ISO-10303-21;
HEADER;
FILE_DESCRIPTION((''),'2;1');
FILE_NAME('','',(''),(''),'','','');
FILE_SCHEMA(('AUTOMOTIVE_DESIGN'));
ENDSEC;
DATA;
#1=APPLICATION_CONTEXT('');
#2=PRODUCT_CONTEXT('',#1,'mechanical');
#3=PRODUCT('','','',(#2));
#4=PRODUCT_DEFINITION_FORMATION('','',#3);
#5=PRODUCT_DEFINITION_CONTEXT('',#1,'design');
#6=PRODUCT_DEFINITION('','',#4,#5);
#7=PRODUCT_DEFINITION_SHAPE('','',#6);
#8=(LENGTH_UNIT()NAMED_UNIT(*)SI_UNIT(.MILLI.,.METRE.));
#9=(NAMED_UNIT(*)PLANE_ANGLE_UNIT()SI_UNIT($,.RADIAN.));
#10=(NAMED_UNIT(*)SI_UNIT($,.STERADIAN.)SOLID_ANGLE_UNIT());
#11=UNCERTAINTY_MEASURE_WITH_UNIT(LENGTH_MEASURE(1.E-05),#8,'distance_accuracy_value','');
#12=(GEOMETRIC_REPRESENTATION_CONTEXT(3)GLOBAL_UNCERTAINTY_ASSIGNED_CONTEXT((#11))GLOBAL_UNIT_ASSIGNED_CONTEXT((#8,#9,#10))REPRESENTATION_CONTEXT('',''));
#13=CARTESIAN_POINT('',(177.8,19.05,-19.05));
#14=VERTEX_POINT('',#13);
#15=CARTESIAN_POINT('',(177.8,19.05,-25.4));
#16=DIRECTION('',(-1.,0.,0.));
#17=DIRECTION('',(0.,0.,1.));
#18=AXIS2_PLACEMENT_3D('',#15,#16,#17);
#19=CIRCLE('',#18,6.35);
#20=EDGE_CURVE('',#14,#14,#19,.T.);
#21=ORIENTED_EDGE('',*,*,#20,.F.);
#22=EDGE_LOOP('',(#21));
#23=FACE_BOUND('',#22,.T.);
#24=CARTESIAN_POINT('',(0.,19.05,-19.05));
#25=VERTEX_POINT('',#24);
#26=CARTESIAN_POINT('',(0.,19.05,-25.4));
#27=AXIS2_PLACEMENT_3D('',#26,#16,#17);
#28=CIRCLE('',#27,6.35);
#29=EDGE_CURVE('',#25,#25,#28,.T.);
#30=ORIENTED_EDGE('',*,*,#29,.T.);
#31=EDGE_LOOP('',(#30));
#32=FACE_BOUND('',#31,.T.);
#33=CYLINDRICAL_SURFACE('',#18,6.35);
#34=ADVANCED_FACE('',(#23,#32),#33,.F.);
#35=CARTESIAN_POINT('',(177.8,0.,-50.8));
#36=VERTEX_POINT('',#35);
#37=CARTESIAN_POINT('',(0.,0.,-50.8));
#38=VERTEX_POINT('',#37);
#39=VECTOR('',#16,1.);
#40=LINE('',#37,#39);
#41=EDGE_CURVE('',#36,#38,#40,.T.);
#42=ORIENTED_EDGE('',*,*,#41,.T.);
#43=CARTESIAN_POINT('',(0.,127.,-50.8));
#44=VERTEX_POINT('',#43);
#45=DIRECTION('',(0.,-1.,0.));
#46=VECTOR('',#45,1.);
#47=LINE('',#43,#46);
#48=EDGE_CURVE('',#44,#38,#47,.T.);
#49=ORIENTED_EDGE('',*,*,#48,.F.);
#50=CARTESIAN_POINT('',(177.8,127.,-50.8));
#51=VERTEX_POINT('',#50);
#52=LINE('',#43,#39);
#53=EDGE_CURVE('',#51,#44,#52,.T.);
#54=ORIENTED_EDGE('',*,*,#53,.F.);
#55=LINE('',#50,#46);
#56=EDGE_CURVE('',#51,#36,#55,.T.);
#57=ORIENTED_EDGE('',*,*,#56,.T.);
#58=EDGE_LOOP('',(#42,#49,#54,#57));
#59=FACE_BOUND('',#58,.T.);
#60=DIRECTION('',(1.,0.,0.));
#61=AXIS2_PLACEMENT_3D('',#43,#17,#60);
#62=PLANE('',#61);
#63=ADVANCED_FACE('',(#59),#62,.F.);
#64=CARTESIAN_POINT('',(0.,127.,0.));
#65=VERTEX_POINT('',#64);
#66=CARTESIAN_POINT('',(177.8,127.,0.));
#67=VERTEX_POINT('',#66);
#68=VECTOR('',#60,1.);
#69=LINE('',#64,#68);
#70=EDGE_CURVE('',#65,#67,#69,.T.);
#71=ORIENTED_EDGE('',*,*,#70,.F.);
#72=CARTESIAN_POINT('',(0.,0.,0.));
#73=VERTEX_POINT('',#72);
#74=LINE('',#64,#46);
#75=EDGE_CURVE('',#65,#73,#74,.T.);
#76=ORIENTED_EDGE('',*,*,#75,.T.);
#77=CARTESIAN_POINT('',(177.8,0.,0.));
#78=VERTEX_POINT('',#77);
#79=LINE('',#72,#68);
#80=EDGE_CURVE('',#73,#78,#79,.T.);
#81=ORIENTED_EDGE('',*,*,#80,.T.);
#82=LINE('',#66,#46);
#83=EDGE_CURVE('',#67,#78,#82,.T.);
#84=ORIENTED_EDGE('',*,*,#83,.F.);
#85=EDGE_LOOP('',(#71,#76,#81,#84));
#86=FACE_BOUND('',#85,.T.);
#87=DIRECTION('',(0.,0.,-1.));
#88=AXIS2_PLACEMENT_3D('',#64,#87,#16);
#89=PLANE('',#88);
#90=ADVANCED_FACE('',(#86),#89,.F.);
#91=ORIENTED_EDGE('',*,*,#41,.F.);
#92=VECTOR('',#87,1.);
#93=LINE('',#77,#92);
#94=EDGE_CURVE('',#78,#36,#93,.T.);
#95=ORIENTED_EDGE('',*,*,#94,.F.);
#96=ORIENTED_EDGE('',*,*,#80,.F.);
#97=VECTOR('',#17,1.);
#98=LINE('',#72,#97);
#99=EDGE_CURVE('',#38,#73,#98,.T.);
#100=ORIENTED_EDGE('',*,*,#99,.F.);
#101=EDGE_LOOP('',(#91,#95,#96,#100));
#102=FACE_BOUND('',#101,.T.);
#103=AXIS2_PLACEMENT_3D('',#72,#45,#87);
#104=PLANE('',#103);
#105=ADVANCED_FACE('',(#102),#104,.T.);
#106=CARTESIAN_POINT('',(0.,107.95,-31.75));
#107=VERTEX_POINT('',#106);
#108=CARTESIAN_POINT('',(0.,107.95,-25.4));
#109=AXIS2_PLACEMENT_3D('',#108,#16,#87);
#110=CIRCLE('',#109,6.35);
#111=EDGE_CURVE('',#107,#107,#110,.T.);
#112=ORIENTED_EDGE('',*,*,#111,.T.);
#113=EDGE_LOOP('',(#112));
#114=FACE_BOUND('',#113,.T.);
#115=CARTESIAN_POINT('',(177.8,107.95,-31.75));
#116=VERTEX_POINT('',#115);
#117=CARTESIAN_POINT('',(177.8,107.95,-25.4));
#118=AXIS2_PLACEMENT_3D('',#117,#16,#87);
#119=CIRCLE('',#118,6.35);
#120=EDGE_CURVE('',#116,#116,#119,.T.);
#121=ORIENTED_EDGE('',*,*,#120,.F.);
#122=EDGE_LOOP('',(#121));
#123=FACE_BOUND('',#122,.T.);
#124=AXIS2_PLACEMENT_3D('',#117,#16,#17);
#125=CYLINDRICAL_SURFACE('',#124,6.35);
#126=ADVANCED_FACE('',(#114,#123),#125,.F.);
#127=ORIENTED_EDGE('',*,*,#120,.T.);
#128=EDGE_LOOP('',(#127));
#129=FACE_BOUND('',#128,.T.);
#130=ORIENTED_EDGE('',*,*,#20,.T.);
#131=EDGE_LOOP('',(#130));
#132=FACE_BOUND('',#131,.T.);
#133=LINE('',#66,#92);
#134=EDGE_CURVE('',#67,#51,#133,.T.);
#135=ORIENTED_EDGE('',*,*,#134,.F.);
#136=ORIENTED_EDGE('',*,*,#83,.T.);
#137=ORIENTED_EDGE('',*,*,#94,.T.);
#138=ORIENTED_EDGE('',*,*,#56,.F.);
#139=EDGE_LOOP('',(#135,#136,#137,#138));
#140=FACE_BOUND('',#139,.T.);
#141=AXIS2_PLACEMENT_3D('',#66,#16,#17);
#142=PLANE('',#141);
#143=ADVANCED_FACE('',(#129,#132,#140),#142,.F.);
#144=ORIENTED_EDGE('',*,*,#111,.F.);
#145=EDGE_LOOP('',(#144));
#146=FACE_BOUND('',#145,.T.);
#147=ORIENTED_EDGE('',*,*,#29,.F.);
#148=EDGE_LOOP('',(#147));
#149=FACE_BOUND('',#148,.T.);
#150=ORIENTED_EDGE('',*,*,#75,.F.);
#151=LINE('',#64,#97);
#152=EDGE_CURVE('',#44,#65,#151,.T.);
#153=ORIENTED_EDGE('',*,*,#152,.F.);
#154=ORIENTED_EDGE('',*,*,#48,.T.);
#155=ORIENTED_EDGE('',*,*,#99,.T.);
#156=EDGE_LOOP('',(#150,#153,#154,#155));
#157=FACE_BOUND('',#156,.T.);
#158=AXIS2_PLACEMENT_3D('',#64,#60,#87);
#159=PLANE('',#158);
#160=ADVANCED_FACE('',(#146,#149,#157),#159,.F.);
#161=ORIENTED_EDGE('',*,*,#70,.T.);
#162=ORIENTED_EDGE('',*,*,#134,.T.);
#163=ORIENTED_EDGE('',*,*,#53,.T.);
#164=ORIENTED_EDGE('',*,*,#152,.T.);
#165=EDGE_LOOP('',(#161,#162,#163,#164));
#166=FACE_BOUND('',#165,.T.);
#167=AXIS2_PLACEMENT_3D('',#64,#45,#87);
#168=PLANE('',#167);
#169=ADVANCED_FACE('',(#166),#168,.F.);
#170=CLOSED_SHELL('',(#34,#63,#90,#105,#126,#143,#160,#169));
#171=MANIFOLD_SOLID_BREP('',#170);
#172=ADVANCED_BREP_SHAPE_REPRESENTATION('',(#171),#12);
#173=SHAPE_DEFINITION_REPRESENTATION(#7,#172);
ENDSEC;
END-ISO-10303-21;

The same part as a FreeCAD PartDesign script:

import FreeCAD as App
import Part
import Sketcher
from FreeCAD import Vector
Q = App.Units.Quantity

doc = App.newDocument("Part")
body = doc.addObject("PartDesign::Body", "Body")

# Sketch on XZ plane
sketch1 = body.newObject("Sketcher::SketchObject", "Sketch")
sketch1.AttachmentSupport = (doc.getObject("XZ_Plane"), [""])
sketch1.MapMode = "FlatFace"
sketch1.addGeometry([
    Part.LineSegment(Vector(0, -51, 0), Vector(0, 0, 0)),
    Part.LineSegment(Vector(0, 0, 0), Vector(178, 0, 0)),
    Part.LineSegment(Vector(178, 0, 0), Vector(178, -51, 0)),
    Part.LineSegment(Vector(178, -51, 0), Vector(0, -51, 0)),
], False)
sketch1.addConstraint([
    Sketcher.Constraint("Coincident", 0, 2, 1, 1),
    Sketcher.Constraint("Coincident", 1, 2, 2, 1),
    Sketcher.Constraint("Coincident", 2, 2, 3, 1),
    Sketcher.Constraint("Coincident", 3, 2, 0, 1),
    Sketcher.Constraint("Vertical", 0),
    Sketcher.Constraint("Horizontal", 1),
    Sketcher.Constraint("Vertical", 2),
    Sketcher.Constraint("Horizontal", 3),
    Sketcher.Constraint("Coincident", 0, 2, -1, 1),
    Sketcher.Constraint("DistanceX", 1, 1, 1, 2, Q("7 in")),
    Sketcher.Constraint("DistanceY", 0, 1, 0, 2, Q("2 in")),
])
pad1 = body.newObject("PartDesign::Pad", "Pad")
pad1.Profile = sketch1
pad1.Length = Q("5 in")
pad1.Reversed = True

# Sketch on YZ plane
sketch2 = body.newObject("Sketcher::SketchObject", "Sketch001")
sketch2.AttachmentSupport = (doc.getObject("YZ_Plane"), [""])
sketch2.MapMode = "FlatFace"
sketch2.addGeometry([
    Part.Circle(Vector(19, -25, 0), Vector(0, 0, 1), 6),
    Part.Circle(Vector(108, -25, 0), Vector(0, 0, 1), 6),
], False)
sketch2.addConstraint([
    Sketcher.Constraint("Equal", 0, 1),
    Sketcher.Constraint("Horizontal", 0, 3, 1, 3),
    Sketcher.Constraint("Diameter", 0, Q("0.5 in")),
    Sketcher.Constraint("DistanceY", 0, 3, -1, 1, Q("1 in")),
    Sketcher.Constraint("DistanceX", 0, 3, 1, 3, Q("3.5 in")),
    Sketcher.Constraint("DistanceX", -1, 1, 0, 3, Q("0.75 in")),
])
pocket1 = body.newObject("PartDesign::Pocket", "Pocket")
pocket1.Profile = sketch2
pocket1.Type = "ThroughAll"
pocket1.Reversed = True

doc.recompute()
